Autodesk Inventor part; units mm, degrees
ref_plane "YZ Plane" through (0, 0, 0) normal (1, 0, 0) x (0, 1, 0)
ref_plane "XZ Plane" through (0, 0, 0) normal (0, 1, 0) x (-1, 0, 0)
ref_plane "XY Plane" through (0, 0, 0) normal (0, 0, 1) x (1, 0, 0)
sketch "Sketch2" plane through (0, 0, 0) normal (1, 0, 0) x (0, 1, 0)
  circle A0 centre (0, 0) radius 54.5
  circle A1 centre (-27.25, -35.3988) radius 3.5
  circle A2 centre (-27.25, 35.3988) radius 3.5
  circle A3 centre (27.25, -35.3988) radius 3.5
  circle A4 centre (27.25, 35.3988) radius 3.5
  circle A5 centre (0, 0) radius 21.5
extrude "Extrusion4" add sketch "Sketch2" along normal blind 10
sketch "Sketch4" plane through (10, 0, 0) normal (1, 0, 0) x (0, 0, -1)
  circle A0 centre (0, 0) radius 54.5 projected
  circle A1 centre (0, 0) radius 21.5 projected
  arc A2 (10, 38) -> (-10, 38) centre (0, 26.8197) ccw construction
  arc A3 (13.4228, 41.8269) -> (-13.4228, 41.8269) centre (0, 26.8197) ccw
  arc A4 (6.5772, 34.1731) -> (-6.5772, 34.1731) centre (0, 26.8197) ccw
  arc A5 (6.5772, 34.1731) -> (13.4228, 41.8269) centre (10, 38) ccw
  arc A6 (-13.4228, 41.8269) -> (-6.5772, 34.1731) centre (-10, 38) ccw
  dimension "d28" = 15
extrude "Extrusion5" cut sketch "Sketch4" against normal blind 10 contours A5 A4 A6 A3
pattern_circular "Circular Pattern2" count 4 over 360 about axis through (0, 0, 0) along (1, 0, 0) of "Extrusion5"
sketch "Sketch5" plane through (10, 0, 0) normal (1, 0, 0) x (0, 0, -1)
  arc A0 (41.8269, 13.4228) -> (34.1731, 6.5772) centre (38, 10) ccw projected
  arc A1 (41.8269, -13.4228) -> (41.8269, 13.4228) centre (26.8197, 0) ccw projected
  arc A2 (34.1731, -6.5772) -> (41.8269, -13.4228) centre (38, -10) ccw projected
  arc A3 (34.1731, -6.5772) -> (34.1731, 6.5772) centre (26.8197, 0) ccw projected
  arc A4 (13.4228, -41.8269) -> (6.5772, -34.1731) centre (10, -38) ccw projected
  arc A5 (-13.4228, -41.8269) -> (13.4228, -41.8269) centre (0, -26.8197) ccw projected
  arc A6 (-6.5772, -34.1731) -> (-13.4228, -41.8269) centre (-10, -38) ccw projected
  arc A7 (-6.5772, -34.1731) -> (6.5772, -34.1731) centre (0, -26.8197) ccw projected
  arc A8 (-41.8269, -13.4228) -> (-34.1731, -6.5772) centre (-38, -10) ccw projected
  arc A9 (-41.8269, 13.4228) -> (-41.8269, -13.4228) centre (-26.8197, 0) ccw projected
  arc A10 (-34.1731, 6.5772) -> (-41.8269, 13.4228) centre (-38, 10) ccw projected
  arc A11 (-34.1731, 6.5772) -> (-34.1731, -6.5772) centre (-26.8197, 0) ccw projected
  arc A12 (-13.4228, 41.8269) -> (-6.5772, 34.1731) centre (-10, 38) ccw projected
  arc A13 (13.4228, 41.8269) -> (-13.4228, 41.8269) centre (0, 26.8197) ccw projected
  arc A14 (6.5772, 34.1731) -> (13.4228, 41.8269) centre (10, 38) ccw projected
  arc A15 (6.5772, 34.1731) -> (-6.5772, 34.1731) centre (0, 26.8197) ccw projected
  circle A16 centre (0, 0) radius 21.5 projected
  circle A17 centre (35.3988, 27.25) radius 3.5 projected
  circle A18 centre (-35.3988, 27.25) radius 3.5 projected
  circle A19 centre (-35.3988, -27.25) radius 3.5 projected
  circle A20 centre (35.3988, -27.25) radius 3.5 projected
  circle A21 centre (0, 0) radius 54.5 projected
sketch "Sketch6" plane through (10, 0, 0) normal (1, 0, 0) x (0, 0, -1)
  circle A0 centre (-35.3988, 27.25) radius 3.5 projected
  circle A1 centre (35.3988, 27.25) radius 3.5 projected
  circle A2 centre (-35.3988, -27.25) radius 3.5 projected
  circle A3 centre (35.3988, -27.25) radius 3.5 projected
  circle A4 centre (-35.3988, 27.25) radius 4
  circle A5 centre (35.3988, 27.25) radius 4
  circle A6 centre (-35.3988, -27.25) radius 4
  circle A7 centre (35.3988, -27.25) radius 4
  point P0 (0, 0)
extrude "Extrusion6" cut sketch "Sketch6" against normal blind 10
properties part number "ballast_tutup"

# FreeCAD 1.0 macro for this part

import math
import FreeCAD as App
import Part
import Sketcher

V = App.Vector

doc = App.newDocument("Part")
body = doc.addObject("PartDesign::Body", "Body")

# Sketch on YZ plane
sketch1 = doc.addObject("Sketcher::SketchObject", "Sketch")
body.addObject(sketch1)
sketch1.AttachmentSupport = (doc.YZ_Plane, [""])
sketch1.MapMode = "FlatFace"
sketch1.addGeometry(Part.Circle(V(0, 0, 0), V(0, 0, 1), 54.5), False)
sketch1.addGeometry(Part.Circle(V(-27.2, -35.4, 0), V(0, 0, 1), 3.5), False)
sketch1.addGeometry(Part.Circle(V(27.2, -35.4, 0), V(0, 0, 1), 3.5), False)
sketch1.addGeometry(Part.Circle(V(-27.2, 35.4, 0), V(0, 0, 1), 3.5), False)
sketch1.addGeometry(Part.Circle(V(0, 0, 0), V(0, 0, 1), 21.5), False)
sketch1.addGeometry(Part.Circle(V(27.2, 35.4, 0), V(0, 0, 1), 3.5), False)
sketch1.addConstraint(Sketcher.Constraint("Coincident", 0, 3, -1, 1))
sketch1.addConstraint(Sketcher.Constraint("Coincident", 4, 3, -1, 1))
sketch1.addConstraint(Sketcher.Constraint("Equal", 1, 2))
sketch1.addConstraint(Sketcher.Constraint("Equal", 2, 3))
sketch1.addConstraint(Sketcher.Constraint("Equal", 3, 5))
sketch1.addConstraint(Sketcher.Constraint("Symmetric", 2, 3, 3, 3, -1, 1))
sketch1.addConstraint(Sketcher.Constraint("Symmetric", 1, 3, 5, 3, -1, 1))
sketch1.addConstraint(Sketcher.Constraint("Symmetric", 1, 3, 2, 3, -2))
sketch1.addConstraint(Sketcher.Constraint("Diameter", 0, 109.0))
sketch1.addConstraint(Sketcher.Constraint("Diameter", 1, 7.0))
sketch1.addConstraint(Sketcher.Constraint("Diameter", 4, 43.0))
sketch1.addConstraint(Sketcher.Constraint("DistanceX", 1, 3, 2, 3, 54.5))
sketch1.addConstraint(Sketcher.Constraint("DistanceY", 1, 3, -1, 1, 35.3988))
pad1 = doc.addObject("PartDesign::Pad", "Pad")
body.addObject(pad1)
pad1.Profile = sketch1
pad1.Length = 10

# Sketch on YZ plane
sketch2 = doc.addObject("Sketcher::SketchObject", "Sketch001")
body.addObject(sketch2)
sketch2.AttachmentSupport = (doc.YZ_Plane, [""])
sketch2.MapMode = "FlatFace"
sketch2.AttachmentOffset = App.Placement(V(0, 0, 10), App.Rotation())
sketch2.addGeometry(Part.ArcOfCircle(Part.Circle(V(38, -10, 0), V(0, 0, 1), 5), math.radians(138), math.radians(318)), False)
sketch2.addGeometry(Part.ArcOfCircle(Part.Circle(V(27, 0, 0), V(0, 0, 1), 20), math.radians(-42), math.radians(42)), False)
sketch2.addGeometry(Part.ArcOfCircle(Part.Circle(V(38, 10, 0), V(0, 0, 1), 5), math.radians(42), math.radians(222)), False)
sketch2.addGeometry(Part.ArcOfCircle(Part.Circle(V(27, 0, 0), V(0, 0, 1), 10), math.radians(-42), math.radians(42)), False)
sketch2.addConstraint(Sketcher.Constraint("Tangent", 0, 2, 1, 1))
sketch2.addConstraint(Sketcher.Constraint("Tangent", 1, 2, 2, 1))
sketch2.addConstraint(Sketcher.Constraint("Tangent", 2, 2, 3, 2))
sketch2.addConstraint(Sketcher.Constraint("Tangent", 3, 1, 0, 1))
sketch2.addConstraint(Sketcher.Constraint("Coincident", 3, 3, 1, 3))
sketch2.addConstraint(Sketcher.Constraint("Symmetric", 0, 3, 2, 3, -1))
sketch2.addConstraint(Sketcher.Constraint("DistanceX", -1, 1, 0, 3, 38.0))
sketch2.addConstraint(Sketcher.Constraint("DistanceY", 0, 3, -1, 1, 10.0))
sketch2.addConstraint(Sketcher.Constraint("Radius", 0, 5.1343))
sketch2.addConstraint(Sketcher.Constraint("Radius", 1, 20.1342))
pocket1 = doc.addObject("PartDesign::Pocket", "Pocket")
body.addObject(pocket1)
pocket1.Profile = sketch2
pocket1.Length = 10
doc.recompute()

polarpattern = doc.addObject("PartDesign::PolarPattern", "PolarPattern")
body.addObject(polarpattern)
polarpattern.Originals = [pocket1]
polarpattern.Axis = (doc.X_Axis, [""])
polarpattern.Angle = 360
polarpattern.Occurrences = 4
body.Tip = polarpattern

# Sketch on YZ plane
sketch3 = doc.addObject("Sketcher::SketchObject", "Sketch002")
body.addObject(sketch3)
sketch3.AttachmentSupport = (doc.YZ_Plane, [""])
sketch3.MapMode = "FlatFace"
sketch3.AttachmentOffset = App.Placement(V(0, 0, 10), App.Rotation())
sketch3.addGeometry(Part.Circle(V(27.2, 35.4, 0), V(0, 0, 1), 4), False)
sketch3.addGeometry(Part.Circle(V(27.2, 35.4, 0), V(0, 0, 1), 3.5), False)
sketch3.addGeometry(Part.Circle(V(27.2, -35.4, 0), V(0, 0, 1), 4), False)
sketch3.addGeometry(Part.Circle(V(27.2, -35.4, 0), V(0, 0, 1), 3.5), False)
sketch3.addGeometry(Part.Circle(V(-27.2, 35.4, 0), V(0, 0, 1), 4), False)
sketch3.addGeometry(Part.Circle(V(-27.2, 35.4, 0), V(0, 0, 1), 3.5), False)
sketch3.addGeometry(Part.Circle(V(-27.2, -35.4, 0), V(0, 0, 1), 4), False)
sketch3.addGeometry(Part.Circle(V(-27.2, -35.4, 0), V(0, 0, 1), 3.5), False)
sketch3.addConstraint(Sketcher.Constraint("Coincident", 1, 3, 0, 3))
sketch3.addConstraint(Sketcher.Constraint("Coincident", 3, 3, 2, 3))
sketch3.addConstraint(Sketcher.Constraint("Coincident", 5, 3, 4, 3))
sketch3.addConstraint(Sketcher.Constraint("Coincident", 7, 3, 6, 3))
sketch3.addConstraint(Sketcher.Constraint("Equal", 0, 2))
sketch3.addConstraint(Sketcher.Constraint("Equal", 1, 3))
sketch3.addConstraint(Sketcher.Constraint("Equal", 2, 4))
sketch3.addConstraint(Sketcher.Constraint("Equal", 3, 5))
sketch3.addConstraint(Sketcher.Constraint("Equal", 4, 6))
sketch3.addConstraint(Sketcher.Constraint("Equal", 5, 7))
sketch3.addConstraint(Sketcher.Constraint("Symmetric", 2, 3, 4, 3, -1, 1))
sketch3.addConstraint(Sketcher.Constraint("Symmetric", 0, 3, 6, 3, -1, 1))
sketch3.addConstraint(Sketcher.Constraint("Symmetric", 0, 3, 4, 3, -2))
sketch3.addConstraint(Sketcher.Constraint("Diameter", 0, 8.0))
sketch3.addConstraint(Sketcher.Constraint("Diameter", 1, 7.0))
sketch3.addConstraint(Sketcher.Constraint("DistanceX", 4, 3, 0, 3, 54.5))
sketch3.addConstraint(Sketcher.Constraint("DistanceY", -1, 1, 0, 3, 35.3988))
pocket2 = doc.addObject("PartDesign::Pocket", "Pocket001")
body.addObject(pocket2)
pocket2.Profile = sketch3
pocket2.Length = 10

doc.recompute()
